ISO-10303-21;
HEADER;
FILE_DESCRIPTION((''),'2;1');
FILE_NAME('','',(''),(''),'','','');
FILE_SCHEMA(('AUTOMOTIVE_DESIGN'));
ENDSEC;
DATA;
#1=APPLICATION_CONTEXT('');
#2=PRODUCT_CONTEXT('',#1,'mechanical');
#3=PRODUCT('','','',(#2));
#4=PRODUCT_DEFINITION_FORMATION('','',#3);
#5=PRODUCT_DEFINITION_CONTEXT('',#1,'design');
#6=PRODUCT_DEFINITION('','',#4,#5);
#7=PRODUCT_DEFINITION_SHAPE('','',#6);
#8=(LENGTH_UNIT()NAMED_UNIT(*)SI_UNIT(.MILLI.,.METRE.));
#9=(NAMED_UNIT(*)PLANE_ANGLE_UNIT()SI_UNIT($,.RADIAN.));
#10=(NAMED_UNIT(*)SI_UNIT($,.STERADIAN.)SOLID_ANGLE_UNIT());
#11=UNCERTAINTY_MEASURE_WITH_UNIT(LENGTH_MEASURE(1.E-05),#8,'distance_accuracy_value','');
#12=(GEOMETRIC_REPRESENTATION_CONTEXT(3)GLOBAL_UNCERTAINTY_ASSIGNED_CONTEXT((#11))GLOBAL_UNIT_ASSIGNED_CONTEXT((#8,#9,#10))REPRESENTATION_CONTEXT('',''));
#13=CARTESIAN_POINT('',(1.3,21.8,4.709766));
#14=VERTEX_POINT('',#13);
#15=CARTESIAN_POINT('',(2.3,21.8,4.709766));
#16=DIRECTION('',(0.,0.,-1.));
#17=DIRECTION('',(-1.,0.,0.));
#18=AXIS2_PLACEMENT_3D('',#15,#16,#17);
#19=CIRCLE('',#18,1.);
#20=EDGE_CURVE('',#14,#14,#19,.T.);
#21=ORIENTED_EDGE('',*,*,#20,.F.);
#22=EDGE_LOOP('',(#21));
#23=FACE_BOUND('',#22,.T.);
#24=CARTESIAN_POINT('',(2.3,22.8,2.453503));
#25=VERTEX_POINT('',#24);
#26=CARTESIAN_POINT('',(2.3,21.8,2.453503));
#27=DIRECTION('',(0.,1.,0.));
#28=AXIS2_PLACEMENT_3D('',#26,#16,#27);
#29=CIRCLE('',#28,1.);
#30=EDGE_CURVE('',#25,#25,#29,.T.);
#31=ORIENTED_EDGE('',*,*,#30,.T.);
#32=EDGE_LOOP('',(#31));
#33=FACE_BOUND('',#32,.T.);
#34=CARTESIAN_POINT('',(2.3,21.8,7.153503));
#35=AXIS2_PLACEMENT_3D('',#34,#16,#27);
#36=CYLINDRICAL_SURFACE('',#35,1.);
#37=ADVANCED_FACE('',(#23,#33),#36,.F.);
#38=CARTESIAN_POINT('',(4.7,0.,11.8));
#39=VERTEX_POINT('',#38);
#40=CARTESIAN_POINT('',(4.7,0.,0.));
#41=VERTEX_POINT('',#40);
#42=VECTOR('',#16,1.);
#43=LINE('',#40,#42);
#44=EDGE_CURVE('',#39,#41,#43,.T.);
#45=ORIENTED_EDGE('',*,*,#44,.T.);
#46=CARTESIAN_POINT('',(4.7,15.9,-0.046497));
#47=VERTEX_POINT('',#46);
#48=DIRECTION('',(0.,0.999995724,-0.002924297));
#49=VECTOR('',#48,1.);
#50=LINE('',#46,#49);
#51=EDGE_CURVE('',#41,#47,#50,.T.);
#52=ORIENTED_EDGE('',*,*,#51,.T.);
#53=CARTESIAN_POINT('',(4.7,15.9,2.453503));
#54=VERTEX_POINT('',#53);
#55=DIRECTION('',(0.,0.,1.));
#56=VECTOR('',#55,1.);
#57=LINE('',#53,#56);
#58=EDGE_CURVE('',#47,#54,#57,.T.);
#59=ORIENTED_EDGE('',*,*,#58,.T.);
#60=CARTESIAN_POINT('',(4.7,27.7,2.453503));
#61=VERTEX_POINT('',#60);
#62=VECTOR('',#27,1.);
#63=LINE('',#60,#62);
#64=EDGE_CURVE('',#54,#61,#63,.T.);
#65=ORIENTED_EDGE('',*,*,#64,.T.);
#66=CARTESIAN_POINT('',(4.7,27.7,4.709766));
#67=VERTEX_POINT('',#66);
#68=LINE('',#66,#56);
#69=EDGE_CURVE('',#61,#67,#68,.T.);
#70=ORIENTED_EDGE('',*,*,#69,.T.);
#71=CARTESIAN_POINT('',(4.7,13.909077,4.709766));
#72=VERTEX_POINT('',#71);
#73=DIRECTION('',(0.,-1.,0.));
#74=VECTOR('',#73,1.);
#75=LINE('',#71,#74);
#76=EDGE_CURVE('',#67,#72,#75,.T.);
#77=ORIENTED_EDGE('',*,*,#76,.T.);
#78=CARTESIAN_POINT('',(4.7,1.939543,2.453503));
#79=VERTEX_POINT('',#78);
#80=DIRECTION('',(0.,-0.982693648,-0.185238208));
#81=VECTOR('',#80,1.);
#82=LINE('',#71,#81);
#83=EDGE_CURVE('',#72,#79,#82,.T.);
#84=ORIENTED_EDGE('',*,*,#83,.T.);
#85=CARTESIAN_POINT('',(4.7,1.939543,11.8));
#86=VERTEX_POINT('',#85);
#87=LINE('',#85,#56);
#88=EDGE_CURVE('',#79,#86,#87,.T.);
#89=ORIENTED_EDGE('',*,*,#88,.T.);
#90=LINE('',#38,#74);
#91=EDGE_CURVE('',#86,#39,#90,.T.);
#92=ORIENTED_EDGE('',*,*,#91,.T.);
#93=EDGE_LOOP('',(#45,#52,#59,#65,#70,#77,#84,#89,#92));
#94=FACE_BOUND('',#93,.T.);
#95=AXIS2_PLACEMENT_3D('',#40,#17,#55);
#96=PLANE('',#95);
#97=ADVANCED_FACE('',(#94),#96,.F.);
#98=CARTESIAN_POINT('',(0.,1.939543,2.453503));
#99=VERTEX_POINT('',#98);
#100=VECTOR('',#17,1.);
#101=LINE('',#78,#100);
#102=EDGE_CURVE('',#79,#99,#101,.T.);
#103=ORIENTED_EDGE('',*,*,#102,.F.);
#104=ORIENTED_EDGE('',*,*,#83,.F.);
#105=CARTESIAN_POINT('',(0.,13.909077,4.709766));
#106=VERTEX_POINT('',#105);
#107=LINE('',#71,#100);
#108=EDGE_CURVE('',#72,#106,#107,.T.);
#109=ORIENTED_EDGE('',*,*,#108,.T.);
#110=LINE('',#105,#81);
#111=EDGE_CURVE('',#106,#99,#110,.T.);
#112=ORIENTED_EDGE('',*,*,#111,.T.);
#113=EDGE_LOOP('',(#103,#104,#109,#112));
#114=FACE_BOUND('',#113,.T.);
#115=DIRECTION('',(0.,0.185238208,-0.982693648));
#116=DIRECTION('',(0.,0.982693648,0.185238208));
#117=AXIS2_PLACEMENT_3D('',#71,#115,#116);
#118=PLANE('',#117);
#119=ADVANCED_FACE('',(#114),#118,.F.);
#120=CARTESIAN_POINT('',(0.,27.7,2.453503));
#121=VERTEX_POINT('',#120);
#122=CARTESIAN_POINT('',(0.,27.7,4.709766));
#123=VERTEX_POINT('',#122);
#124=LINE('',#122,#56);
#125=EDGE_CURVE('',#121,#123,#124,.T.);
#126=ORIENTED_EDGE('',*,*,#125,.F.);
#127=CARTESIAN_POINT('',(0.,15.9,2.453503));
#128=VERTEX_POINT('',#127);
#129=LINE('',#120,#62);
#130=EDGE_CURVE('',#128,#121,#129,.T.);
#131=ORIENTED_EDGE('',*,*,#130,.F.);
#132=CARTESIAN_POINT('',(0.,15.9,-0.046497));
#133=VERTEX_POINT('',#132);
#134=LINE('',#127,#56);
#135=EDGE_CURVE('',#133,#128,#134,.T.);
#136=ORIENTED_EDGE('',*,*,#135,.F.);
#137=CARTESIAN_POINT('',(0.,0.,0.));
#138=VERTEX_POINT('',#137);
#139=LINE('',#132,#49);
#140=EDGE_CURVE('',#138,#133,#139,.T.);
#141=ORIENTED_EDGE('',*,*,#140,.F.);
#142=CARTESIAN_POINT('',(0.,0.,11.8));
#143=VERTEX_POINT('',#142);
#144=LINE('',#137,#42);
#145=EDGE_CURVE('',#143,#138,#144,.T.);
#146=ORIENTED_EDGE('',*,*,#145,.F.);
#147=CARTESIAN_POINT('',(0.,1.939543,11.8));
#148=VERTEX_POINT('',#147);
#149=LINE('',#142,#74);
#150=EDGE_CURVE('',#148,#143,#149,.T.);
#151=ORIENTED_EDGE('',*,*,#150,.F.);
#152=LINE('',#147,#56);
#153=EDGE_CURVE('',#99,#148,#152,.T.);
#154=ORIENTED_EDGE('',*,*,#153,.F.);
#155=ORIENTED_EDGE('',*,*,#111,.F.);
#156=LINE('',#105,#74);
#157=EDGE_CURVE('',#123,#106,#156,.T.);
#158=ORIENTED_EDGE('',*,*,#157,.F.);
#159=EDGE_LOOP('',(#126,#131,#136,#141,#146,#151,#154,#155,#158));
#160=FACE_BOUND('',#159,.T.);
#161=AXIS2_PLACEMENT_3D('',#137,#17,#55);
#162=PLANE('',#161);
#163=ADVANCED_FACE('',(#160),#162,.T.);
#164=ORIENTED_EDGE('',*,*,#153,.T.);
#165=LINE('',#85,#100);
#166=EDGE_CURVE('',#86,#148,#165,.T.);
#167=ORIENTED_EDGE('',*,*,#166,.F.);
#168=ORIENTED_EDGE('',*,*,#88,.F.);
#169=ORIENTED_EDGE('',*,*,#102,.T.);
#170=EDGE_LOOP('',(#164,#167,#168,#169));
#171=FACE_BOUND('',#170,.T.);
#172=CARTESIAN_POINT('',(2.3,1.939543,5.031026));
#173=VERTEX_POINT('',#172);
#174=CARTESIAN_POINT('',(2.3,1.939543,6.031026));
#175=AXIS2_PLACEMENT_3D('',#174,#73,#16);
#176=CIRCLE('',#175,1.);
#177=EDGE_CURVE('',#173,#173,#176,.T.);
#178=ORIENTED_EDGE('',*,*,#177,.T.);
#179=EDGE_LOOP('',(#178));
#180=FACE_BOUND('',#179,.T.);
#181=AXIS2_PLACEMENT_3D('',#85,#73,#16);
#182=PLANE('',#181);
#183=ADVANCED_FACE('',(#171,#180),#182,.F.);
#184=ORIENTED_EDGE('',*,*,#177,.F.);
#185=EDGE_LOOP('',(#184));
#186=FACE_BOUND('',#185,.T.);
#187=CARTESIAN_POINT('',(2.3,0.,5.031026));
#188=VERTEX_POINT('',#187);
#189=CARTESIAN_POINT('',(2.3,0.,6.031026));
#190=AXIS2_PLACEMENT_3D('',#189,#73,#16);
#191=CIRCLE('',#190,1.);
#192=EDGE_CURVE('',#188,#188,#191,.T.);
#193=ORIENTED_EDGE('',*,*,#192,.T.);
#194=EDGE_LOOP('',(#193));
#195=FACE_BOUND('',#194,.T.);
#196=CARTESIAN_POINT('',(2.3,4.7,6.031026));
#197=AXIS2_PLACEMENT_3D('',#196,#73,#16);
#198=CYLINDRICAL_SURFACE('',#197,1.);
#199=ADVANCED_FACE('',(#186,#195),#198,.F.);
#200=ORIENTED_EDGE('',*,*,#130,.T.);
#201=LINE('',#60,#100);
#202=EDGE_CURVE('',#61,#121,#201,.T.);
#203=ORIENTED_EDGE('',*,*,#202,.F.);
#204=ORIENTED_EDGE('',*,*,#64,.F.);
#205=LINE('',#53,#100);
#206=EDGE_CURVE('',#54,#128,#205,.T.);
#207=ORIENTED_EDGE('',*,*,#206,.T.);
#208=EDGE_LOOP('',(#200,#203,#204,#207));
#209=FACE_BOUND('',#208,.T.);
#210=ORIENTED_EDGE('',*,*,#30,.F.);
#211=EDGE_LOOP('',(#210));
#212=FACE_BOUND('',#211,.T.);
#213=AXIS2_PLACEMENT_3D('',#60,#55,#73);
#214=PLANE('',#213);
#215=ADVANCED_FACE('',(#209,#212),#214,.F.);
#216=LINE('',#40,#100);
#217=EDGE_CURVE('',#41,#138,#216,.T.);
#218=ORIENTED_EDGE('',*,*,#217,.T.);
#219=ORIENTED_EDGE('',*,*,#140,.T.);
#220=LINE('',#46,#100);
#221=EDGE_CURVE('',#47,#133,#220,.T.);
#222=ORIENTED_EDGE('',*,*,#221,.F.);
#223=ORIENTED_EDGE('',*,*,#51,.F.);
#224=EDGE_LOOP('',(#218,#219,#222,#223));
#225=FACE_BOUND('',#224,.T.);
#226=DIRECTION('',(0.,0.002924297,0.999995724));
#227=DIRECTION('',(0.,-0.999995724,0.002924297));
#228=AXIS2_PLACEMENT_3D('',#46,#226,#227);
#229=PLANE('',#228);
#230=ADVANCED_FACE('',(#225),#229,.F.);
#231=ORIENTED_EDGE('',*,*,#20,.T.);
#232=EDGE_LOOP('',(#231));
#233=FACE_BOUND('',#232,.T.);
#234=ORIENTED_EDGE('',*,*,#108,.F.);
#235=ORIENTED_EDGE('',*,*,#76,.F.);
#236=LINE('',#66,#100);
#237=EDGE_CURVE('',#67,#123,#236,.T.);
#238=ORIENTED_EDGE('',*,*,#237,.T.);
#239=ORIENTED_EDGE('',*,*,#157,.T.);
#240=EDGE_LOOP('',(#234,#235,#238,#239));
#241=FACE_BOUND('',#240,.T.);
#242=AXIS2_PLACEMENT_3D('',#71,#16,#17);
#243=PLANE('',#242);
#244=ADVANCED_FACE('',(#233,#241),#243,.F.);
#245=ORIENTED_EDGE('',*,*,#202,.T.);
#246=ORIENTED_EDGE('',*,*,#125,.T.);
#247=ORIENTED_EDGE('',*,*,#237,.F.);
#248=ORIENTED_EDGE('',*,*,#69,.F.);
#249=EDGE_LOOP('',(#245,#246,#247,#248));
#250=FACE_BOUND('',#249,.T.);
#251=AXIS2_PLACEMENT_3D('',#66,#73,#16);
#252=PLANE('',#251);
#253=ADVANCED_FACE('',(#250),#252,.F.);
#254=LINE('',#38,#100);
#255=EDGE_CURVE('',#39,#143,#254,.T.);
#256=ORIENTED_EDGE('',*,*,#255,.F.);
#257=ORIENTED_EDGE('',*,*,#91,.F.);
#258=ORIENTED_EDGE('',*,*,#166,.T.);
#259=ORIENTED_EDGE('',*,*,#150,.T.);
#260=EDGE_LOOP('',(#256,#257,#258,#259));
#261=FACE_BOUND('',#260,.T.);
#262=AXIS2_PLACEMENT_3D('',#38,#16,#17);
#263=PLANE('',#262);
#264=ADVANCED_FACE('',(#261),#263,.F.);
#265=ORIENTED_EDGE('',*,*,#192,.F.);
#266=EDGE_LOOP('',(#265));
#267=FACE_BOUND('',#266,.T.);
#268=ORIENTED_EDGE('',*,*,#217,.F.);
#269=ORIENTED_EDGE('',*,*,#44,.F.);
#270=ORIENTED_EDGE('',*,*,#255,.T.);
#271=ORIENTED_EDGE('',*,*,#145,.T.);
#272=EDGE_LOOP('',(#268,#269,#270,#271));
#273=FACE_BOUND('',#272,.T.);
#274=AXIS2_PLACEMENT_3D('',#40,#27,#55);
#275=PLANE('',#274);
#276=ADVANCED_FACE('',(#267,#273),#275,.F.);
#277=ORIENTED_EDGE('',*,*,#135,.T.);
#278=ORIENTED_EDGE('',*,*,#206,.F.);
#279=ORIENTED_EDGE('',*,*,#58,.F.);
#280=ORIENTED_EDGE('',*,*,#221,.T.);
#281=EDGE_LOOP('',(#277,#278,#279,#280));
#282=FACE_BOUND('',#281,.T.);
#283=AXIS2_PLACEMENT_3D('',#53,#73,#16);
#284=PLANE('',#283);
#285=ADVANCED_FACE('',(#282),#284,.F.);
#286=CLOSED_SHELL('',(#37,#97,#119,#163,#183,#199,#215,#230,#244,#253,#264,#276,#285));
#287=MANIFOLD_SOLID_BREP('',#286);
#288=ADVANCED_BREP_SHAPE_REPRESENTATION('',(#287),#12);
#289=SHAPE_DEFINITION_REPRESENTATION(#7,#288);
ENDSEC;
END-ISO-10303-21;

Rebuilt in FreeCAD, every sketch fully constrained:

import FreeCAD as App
import Part
import Sketcher
from FreeCAD import Vector
Q = App.Units.Quantity

doc = App.newDocument("Part")
params = doc.addObject("Spreadsheet::Sheet", "Params")
for row, (alias, value) in enumerate([
    ("sketch1_width", "11.8 mm"),
    ("sketch1_height", "2.5 mm"),
    ("pad1_length", "4.7 mm"),
    ("sketch2_diameter", "2 mm"),
    ("pocket1_length", "4.7 mm"),
    ("sketch3_diameter", "2 mm"),
    ("pocket2_length", "4.7 mm"),
], start=1):
    params.set(f"A{row}", alias)
    params.set(f"B{row}", "=" + value)
    params.setAlias(f"B{row}", alias)

body = doc.addObject("PartDesign::Body", "Body")

# Sketch on YZ plane
sketch1 = body.newObject("Sketcher::SketchObject", "Sketch")
sketch1.AttachmentSupport = (doc.getObject("YZ_Plane"), [""])
sketch1.MapMode = "FlatFace"
sketch1.addGeometry([
    Part.LineSegment(Vector(15.9, 2.5, 0), Vector(27.7, 2.5, 0)),  # 0
    Part.LineSegment(Vector(27.7, 2.5, 0), Vector(27.7, 4.7, 0)),  # 1
    Part.LineSegment(Vector(27.7, 4.7, 0), Vector(13.9, 4.7, 0)),  # 2
    Part.LineSegment(Vector(13.9, 4.7, 0), Vector(1.9, 2.5, 0)),  # 3
    Part.LineSegment(Vector(1.9, 2.5, 0), Vector(1.9, 11.8, 0)),  # 4
    Part.LineSegment(Vector(1.9, 11.8, 0), Vector(0, 11.8, 0)),  # 5
    Part.LineSegment(Vector(0, 11.8, 0), Vector(0, 0, 0)),  # 6
    Part.LineSegment(Vector(0, 0, 0), Vector(15.9, 0, 0)),  # 7
    Part.LineSegment(Vector(15.9, 0, 0), Vector(15.9, 2.5, 0)),  # 8
], False)
sketch1.addConstraint([
    Sketcher.Constraint("Coincident", 0, 2, 1, 1),
    Sketcher.Constraint("Coincident", 1, 2, 2, 1),
    Sketcher.Constraint("Coincident", 2, 2, 3, 1),
    Sketcher.Constraint("Coincident", 3, 2, 4, 1),
    Sketcher.Constraint("Coincident", 4, 2, 5, 1),
    Sketcher.Constraint("Coincident", 5, 2, 6, 1),
    Sketcher.Constraint("Coincident", 6, 2, 7, 1),
    Sketcher.Constraint("Coincident", 7, 2, 8, 1),
    Sketcher.Constraint("Coincident", 8, 2, 0, 1),
    Sketcher.Constraint("Horizontal", 0),
    Sketcher.Constraint("Vertical", 1),
    Sketcher.Constraint("Horizontal", 2),
    Sketcher.Constraint("Vertical", 4),
    Sketcher.Constraint("Horizontal", 5),
    Sketcher.Constraint("Vertical", 6),
    Sketcher.Constraint("Vertical", 8),
    Sketcher.Constraint("Coincident", 6, 2, -1, 1),
    Sketcher.Constraint("Horizontal", 0, 2, 3, 2),
    Sketcher.Constraint("Equal", 0, 6),
    Sketcher.Constraint("DistanceX", 0, 1, 0, 2, Q("11.8 mm")),
    Sketcher.Constraint("DistanceY", 8, 1, 8, 2, Q("2.5 mm")),
    Sketcher.Constraint("DistanceX", -1, 1, 0, 2, Q("27.7 mm")),
    Sketcher.Constraint("Distance", 3, Q("12.180331 mm")),
    Sketcher.Constraint("DistanceX", 2, 2, 2, 1, Q("13.790923 mm")),
    Sketcher.Constraint("DistanceX", 5, 2, 5, 1, Q("1.939543 mm")),
    Sketcher.Constraint("DistanceY", 4, 1, 4, 2, Q("9.346497 mm")),
])
sketch1.setExpression("Constraints[19]", "Params.sketch1_width")
sketch1.setExpression("Constraints[20]", "Params.sketch1_height")
pad1 = body.newObject("PartDesign::Pad", "Pad")
pad1.Profile = sketch1
pad1.setExpression("Length", "Params.pad1_length")

# Sketch on XY plane
sketch2 = body.newObject("Sketcher::SketchObject", "Sketch001")
sketch2.AttachmentSupport = (doc.getObject("XY_Plane"), [""])
sketch2.MapMode = "FlatFace"
sketch2.AttachmentOffset = App.Placement(Vector(0, 0, 2.453503), App.Rotation())
sketch2.addGeometry(Part.Circle(Vector(2.3, 21.8, 0), Vector(0, 0, 1), 1), False)
sketch2.addConstraint([
    Sketcher.Constraint("Diameter", 0, Q("2 mm")),
    Sketcher.Constraint("DistanceX", -1, 1, 0, 3, Q("2.3 mm")),
    Sketcher.Constraint("DistanceY", -1, 1, 0, 3, Q("21.8 mm")),
])
sketch2.setExpression("Constraints[0]", "Params.sketch2_diameter")
pocket1 = body.newObject("PartDesign::Pocket", "Pocket")
pocket1.Profile = sketch2
pocket1.setExpression("Length", "Params.pocket1_length")
pocket1.Reversed = True

# Sketch on XZ plane
sketch3 = body.newObject("Sketcher::SketchObject", "Sketch002")
sketch3.AttachmentSupport = (doc.getObject("XZ_Plane"), [""])
sketch3.MapMode = "FlatFace"
sketch3.addGeometry(Part.Circle(Vector(2.3, 6, 0), Vector(0, 0, 1), 1), False)
sketch3.addConstraint([
    Sketcher.Constraint("Diameter", 0, Q("2 mm")),
    Sketcher.Constraint("DistanceX", -1, 1, 0, 3, Q("2.3 mm")),
    Sketcher.Constraint("DistanceY", -1, 1, 0, 3, Q("6.031026 mm")),
])
sketch3.setExpression("Constraints[0]", "Params.sketch3_diameter")
pocket2 = body.newObject("PartDesign::Pocket", "Pocket001")
pocket2.Profile = sketch3
pocket2.setExpression("Length", "Params.pocket2_length")

doc.recompute()
